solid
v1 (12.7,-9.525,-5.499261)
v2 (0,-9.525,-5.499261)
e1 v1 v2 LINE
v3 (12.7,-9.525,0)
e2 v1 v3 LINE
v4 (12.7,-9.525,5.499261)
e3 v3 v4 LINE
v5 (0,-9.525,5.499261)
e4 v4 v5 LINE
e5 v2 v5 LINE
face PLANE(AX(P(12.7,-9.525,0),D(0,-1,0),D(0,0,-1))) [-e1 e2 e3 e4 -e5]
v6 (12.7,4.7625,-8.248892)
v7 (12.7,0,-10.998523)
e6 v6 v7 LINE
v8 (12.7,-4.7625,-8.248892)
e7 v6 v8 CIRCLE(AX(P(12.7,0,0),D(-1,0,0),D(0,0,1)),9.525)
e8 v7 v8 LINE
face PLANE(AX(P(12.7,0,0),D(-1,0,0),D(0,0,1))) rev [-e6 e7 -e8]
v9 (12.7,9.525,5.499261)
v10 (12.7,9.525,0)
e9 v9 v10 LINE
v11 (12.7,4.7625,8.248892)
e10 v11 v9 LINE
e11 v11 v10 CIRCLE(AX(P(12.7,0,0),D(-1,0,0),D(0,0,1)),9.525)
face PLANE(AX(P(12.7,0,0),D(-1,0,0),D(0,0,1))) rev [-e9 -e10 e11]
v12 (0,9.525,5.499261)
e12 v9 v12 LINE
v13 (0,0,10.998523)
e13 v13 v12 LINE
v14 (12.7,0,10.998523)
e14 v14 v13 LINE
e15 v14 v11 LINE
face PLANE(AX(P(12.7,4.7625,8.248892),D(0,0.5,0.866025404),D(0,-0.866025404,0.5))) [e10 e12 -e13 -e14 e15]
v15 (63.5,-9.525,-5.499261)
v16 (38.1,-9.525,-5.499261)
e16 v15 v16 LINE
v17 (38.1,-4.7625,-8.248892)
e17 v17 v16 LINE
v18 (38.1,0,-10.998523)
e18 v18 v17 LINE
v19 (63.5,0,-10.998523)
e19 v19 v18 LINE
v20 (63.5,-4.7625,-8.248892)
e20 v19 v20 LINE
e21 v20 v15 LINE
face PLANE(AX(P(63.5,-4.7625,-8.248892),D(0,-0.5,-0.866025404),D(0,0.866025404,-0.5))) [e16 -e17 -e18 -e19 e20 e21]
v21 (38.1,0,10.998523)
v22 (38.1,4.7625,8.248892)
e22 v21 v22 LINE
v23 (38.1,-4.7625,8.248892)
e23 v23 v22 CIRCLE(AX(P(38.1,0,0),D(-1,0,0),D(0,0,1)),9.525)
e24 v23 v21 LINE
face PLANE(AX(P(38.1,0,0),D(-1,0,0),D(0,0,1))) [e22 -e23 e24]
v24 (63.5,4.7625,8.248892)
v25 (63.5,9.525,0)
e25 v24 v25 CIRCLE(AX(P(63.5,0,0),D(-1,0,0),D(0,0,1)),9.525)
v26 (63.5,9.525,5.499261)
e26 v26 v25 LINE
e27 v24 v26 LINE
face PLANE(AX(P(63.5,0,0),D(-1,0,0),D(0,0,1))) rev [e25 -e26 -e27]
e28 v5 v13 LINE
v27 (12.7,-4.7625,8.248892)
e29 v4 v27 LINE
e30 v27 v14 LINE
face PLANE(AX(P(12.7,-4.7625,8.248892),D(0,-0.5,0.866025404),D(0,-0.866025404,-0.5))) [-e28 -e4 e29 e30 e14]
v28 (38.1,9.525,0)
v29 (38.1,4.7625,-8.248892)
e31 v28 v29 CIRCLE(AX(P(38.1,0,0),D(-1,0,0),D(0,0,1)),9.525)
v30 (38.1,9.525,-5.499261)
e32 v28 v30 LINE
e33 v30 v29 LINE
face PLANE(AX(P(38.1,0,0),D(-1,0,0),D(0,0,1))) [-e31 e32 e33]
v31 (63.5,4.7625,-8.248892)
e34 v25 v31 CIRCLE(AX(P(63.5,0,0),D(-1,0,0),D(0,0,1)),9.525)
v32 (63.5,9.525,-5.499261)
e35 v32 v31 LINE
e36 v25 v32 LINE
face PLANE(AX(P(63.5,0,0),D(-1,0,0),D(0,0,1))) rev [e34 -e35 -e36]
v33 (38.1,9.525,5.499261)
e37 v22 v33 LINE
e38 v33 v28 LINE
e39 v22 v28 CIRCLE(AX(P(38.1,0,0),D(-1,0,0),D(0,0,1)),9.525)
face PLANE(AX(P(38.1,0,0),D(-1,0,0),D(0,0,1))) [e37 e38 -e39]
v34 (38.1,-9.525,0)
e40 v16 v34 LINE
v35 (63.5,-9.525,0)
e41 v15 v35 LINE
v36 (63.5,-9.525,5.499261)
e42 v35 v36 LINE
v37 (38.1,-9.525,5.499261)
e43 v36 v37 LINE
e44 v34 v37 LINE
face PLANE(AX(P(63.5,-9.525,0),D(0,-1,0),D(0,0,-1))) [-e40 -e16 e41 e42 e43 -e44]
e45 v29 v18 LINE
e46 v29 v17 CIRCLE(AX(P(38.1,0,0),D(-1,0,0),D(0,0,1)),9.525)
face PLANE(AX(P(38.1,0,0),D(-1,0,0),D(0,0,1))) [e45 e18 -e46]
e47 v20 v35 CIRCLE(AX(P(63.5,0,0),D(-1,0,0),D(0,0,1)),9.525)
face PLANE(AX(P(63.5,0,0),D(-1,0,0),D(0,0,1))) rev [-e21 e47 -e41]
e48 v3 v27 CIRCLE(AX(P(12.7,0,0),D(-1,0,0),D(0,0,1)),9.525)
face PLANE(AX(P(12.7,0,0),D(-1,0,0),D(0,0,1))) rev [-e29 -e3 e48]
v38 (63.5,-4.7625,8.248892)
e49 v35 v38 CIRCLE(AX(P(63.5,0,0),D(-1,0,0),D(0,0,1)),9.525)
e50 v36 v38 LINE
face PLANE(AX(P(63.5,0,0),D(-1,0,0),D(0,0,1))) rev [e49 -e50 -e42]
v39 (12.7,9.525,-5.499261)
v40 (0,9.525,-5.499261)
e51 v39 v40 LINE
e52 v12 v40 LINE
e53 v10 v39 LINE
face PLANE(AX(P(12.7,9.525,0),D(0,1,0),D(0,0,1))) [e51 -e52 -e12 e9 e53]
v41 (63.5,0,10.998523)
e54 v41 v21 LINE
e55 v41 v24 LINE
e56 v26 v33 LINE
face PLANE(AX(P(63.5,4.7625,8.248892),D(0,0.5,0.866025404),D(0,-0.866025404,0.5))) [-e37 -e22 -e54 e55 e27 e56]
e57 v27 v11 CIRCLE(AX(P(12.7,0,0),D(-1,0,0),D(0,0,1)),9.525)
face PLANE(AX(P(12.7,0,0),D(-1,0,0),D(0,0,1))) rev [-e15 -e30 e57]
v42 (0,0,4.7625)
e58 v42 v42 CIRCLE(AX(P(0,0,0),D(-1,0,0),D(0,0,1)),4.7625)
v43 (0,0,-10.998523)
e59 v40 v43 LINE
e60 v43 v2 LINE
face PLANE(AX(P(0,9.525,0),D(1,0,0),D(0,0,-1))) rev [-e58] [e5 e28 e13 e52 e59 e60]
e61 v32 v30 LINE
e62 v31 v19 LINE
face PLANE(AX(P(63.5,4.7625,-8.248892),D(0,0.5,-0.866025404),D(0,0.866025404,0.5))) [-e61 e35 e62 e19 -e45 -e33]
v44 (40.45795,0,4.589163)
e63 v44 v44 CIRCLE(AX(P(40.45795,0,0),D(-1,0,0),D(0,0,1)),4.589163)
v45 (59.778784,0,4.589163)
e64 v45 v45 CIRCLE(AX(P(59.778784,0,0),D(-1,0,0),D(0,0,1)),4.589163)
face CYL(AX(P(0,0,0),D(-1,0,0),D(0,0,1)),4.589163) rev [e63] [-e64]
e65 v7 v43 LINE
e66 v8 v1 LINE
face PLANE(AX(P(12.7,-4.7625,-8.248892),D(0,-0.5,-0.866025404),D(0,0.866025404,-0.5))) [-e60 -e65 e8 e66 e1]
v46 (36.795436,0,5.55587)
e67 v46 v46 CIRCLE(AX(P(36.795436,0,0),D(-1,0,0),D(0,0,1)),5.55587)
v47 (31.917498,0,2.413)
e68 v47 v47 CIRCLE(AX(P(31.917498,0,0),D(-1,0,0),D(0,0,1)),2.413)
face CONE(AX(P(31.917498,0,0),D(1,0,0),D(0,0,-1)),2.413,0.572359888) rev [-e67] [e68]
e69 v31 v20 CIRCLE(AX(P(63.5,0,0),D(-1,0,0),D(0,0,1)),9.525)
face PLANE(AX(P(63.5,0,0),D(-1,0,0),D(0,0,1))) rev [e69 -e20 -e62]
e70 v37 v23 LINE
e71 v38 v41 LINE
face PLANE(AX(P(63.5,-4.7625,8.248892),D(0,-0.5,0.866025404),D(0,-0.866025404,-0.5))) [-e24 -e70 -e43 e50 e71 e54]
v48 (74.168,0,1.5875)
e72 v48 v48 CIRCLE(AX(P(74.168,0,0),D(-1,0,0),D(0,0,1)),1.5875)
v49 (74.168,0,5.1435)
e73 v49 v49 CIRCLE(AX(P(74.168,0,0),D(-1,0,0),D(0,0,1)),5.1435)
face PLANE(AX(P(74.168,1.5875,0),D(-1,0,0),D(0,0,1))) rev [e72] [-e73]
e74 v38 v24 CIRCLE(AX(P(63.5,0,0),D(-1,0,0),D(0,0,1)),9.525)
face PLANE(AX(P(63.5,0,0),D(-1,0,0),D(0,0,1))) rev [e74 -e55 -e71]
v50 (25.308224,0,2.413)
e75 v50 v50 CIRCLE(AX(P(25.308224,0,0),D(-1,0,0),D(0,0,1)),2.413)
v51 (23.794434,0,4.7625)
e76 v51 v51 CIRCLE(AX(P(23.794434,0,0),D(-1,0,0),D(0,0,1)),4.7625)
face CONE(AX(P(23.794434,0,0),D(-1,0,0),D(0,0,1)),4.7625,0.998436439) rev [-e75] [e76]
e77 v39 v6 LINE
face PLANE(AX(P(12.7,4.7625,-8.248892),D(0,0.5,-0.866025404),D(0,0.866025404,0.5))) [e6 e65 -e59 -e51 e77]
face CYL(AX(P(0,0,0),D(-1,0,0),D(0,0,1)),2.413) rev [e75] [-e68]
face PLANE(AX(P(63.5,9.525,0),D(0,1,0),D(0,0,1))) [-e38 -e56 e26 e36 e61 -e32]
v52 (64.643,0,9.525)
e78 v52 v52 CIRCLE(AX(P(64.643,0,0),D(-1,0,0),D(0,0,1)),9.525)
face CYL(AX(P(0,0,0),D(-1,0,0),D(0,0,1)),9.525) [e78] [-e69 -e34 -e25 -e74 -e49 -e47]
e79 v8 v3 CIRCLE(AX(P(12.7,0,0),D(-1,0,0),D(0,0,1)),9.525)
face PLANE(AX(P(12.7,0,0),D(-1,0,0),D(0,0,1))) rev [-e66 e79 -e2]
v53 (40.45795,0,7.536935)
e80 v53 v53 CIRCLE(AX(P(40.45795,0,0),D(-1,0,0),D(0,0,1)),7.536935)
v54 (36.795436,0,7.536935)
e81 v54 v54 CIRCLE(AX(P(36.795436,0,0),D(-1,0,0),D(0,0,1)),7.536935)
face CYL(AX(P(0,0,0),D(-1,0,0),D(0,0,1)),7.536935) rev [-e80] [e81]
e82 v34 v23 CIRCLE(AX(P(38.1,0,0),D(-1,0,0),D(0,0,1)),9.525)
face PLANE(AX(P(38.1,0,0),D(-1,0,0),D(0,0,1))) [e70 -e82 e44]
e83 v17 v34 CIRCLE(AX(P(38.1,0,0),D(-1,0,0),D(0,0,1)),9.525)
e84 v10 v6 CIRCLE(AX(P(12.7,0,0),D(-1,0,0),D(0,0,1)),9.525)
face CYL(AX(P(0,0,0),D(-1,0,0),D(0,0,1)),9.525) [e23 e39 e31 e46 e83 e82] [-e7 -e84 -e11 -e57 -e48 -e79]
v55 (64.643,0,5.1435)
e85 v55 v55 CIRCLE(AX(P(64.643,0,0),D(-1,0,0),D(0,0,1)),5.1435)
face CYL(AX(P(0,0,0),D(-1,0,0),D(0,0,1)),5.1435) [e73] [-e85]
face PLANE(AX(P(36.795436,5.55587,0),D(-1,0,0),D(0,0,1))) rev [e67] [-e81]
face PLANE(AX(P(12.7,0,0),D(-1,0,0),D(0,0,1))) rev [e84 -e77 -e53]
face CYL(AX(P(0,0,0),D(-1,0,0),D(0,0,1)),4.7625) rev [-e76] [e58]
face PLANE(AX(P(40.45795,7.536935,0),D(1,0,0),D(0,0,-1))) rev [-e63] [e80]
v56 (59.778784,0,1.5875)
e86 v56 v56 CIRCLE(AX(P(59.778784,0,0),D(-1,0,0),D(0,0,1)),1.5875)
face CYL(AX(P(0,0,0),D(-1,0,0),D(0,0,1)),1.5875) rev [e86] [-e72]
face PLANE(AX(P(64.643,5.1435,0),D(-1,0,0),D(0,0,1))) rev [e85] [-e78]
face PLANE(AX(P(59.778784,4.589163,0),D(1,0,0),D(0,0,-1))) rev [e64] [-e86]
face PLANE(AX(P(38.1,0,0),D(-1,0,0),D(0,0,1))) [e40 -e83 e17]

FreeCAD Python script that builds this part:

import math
import FreeCAD as App
import Part
import Sketcher

V = App.Vector
Q = App.Units.Quantity


def add_polygon(sketch, points):
    """Adds a closed chain of lines whose ends are joined by coincident constraints."""
    first, n = sketch.GeometryCount, len(points)
    for a, b in zip(points, points[1:] + points[:1]):
        sketch.addGeometry(Part.LineSegment(App.Vector(*a, 0), App.Vector(*b, 0)), False)
    for i in range(n):
        sketch.addConstraint(Sketcher.Constraint("Coincident", first + i, 2, first + (i + 1) % n, 1))

doc = App.newDocument("Part")
body = doc.addObject("PartDesign::Body", "Body")

# Sketch on XY plane
sketch1 = body.newObject("Sketcher::SketchObject", "Sketch")
sketch1.AttachmentSupport = (doc.getObject("XY_Plane"), [""])
sketch1.MapMode = "FlatFace"
add_polygon(sketch1, [(64.6, 9.5), (0, 9.5), (0, 4.8), (23.8, 4.8), (25.3, 2.4), (31.9, 2.4), (36.8, 5.6), (36.8, 7.5), (40.5, 7.5), (40.5, 4.6), (59.8, 4.6), (59.8, 1.6), (74.2, 1.6), (74.2, 5.1), (64.6, 5.1)])  # lines 0-14
sketch1.addConstraint([
    Sketcher.Constraint("Horizontal", 0),
    Sketcher.Constraint("Vertical", 1),
    Sketcher.Constraint("Horizontal", 2),
    Sketcher.Constraint("Horizontal", 4),
    Sketcher.Constraint("Vertical", 6),
    Sketcher.Constraint("Horizontal", 7),
    Sketcher.Constraint("Vertical", 8),
    Sketcher.Constraint("Horizontal", 9),
    Sketcher.Constraint("Vertical", 10),
    Sketcher.Constraint("Horizontal", 11),
    Sketcher.Constraint("Vertical", 12),
    Sketcher.Constraint("Horizontal", 13),
    Sketcher.Constraint("Vertical", 14),
    Sketcher.Constraint("PointOnObject", 0, 2, -2),
    Sketcher.Constraint("Perpendicular", 3, 5),
    Sketcher.Constraint("DistanceY", 12, 1, 12, 2, Q("0.14 in")),
    Sketcher.Constraint("DistanceX", 0, 2, 0, 1, Q("2.545 in")),
    Sketcher.Constraint("DistanceX", 13, 2, 13, 1, Q("0.375 in")),
    Sketcher.Constraint("DistanceY", 1, 2, 1, 1, Q("0.1875 in")),
    Sketcher.Constraint("DistanceY", 3, 2, 0, 2, Q("0.28 in")),
    Sketcher.Constraint("DistanceY", 14, 1, 14, 2, Q("0.1725 in")),
    Sketcher.Constraint("DistanceY", -1, 1, 0, 2, Q("0.375 in")),
    Sketcher.Constraint("DistanceX", -1, 1, 4, 2, 31.917498),
    Sketcher.Constraint("Distance", 5, 5.80275),
    Sketcher.Constraint("DistanceX", 2, 1, 2, 2, 23.794434),
    Sketcher.Constraint("DistanceX", 4, 1, 4, 2, 6.609274),
    Sketcher.Constraint("DistanceX", 7, 1, 7, 2, 3.662514),
    Sketcher.Constraint("DistanceX", 9, 1, 9, 2, 19.320834),
    Sketcher.Constraint("DistanceY", 6, 1, 6, 2, 1.981065),
    Sketcher.Constraint("DistanceY", 8, 2, 8, 1, 2.947772),
])
revolution = body.newObject("PartDesign::Revolution", "Revolution")
revolution.Profile = sketch1
revolution.ReferenceAxis = (sketch1, ["H_Axis"])
revolution.Angle = 360

# Sketch on YZ plane
sketch2 = body.newObject("Sketcher::SketchObject", "Sketch001")
sketch2.AttachmentSupport = (doc.getObject("YZ_Plane"), [""])
sketch2.MapMode = "FlatFace"
sketch2.AttachmentOffset = App.Placement(V(0, 0, 0.5 * 25.4), App.Rotation())
sketch2.addGeometry([
    Part.LineSegment(V(9.5, 5.5, 0), V(9.5, 0, 0)),  # 0
    Part.ArcOfCircle(Part.Circle(V(0, 0, 0), V(0, 0, 1), 9.5), math.radians(0), math.radians(60)),  # 1
    Part.LineSegment(V(4.8, 8.2, 0), V(9.5, 5.5, 0)),  # 2
    Part.LineSegment(V(9.5, -5.5, 0), V(4.8, -8.2, 0)),  # 3
    Part.ArcOfCircle(Part.Circle(V(0, 0, 0), V(0, 0, 1), 9.5), math.radians(-60), math.radians(0)),  # 4
    Part.LineSegment(V(9.5, 0, 0), V(9.5, -5.5, 0)),  # 5
    Part.LineSegment(V(4.8, -8.2, 0), V(0, -11, 0)),  # 6
    Part.LineSegment(V(0, -11, 0), V(-4.8, -8.2, 0)),  # 7
    Part.ArcOfCircle(Part.Circle(V(0, 0, 0), V(0, 0, 1), 9.5), math.radians(-120), math.radians(-60)),  # 8
    Part.ArcOfCircle(Part.Circle(V(0, 0, 0), V(0, 0, 1), 9.5), math.radians(-180), math.radians(-120)),  # 9
    Part.LineSegment(V(-4.8, -8.2, 0), V(-9.5, -5.5, 0)),  # 10
    Part.LineSegment(V(-9.5, -5.5, 0), V(-9.5, 0, 0)),  # 11
    Part.ArcOfCircle(Part.Circle(V(0, 0, 0), V(0, 0, 1), 9.5), math.radians(120), math.radians(180)),  # 12
    Part.LineSegment(V(-9.5, 0, 0), V(-9.5, 5.5, 0)),  # 13
    Part.LineSegment(V(-9.5, 5.5, 0), V(-4.8, 8.2, 0)),  # 14
    Part.ArcOfCircle(Part.Circle(V(0, 0, 0), V(0, 0, 1), 9.5), math.radians(90), math.radians(120)),  # 15
    Part.LineSegment(V(-4.8, 8.2, 0), V(0, 11, 0)),  # 16
    Part.LineSegment(V(0, 11, 0), V(4.8, 8.2, 0)),  # 17
    Part.ArcOfCircle(Part.Circle(V(0, 0, 0), V(0, 0, 1), 9.5), math.radians(60), math.radians(90)),  # 18
], False)
sketch2.addConstraint([
    Sketcher.Constraint("Tangent", 0, 2, 1, 1),
    Sketcher.Constraint("Tangent", 1, 2, 2, 1),
    Sketcher.Constraint("Coincident", 2, 2, 0, 1),
    Sketcher.Constraint("Tangent", 3, 2, 4, 1),
    Sketcher.Constraint("Tangent", 4, 2, 5, 1),
    Sketcher.Constraint("Coincident", 5, 2, 3, 1),
    Sketcher.Constraint("Coincident", 6, 2, 7, 1),
    Sketcher.Constraint("Tangent", 7, 2, 8, 1),
    Sketcher.Constraint("Tangent", 8, 2, 6, 1),
    Sketcher.Constraint("Tangent", 9, 2, 10, 1),
    Sketcher.Constraint("Coincident", 10, 2, 11, 1),
    Sketcher.Constraint("Tangent", 11, 2, 9, 1),
    Sketcher.Constraint("Tangent", 12, 2, 13, 1),
    Sketcher.Constraint("Coincident", 13, 2, 14, 1),
    Sketcher.Constraint("Tangent", 14, 2, 12, 1),
    Sketcher.Constraint("Tangent", 15, 2, 16, 1),
    Sketcher.Constraint("Coincident", 16, 2, 17, 1),
    Sketcher.Constraint("Tangent", 17, 2, 18, 1),
    Sketcher.Constraint("Tangent", 18, 2, 15, 1),
    Sketcher.Constraint("Vertical", 0),
    Sketcher.Constraint("Vertical", 5),
    Sketcher.Constraint("Vertical", 11),
    Sketcher.Constraint("Vertical", 13),
    Sketcher.Constraint("Coincident", 1, 3, -1, 1),
    Sketcher.Constraint("Coincident", 4, 3, -1, 1),
    Sketcher.Constraint("Coincident", 8, 3, -1, 1),
    Sketcher.Constraint("Coincident", 9, 3, -1, 1),
    Sketcher.Constraint("Coincident", 12, 3, -1, 1),
    Sketcher.Constraint("Coincident", 15, 3, -1, 1),
    Sketcher.Constraint("Coincident", 8, 2, 3, 2),
    Sketcher.Constraint("Coincident", 9, 2, 7, 2),
    Sketcher.Constraint("Coincident", 15, 2, 14, 2),
    Sketcher.Constraint("Coincident", 17, 2, 1, 2),
    Sketcher.Constraint("Equal", 1, 4),
    Sketcher.Constraint("Equal", 9, 12),
    Sketcher.Constraint("Symmetric", 6, 2, 16, 2, -1, 1),
    Sketcher.Constraint("PointOnObject", 6, 2, -2),
    Sketcher.Constraint("PointOnObject", 18, 2, -2),
    Sketcher.Constraint("Equal", 3, 6),
    Sketcher.Constraint("Radius", 1, Q("0.375 in")),
])
pad1 = body.newObject("PartDesign::Pad", "Pad")
pad1.Profile = sketch2
pad1.Length = Q("0.5 in")
pad1.Reversed = True

# Sketch on YZ plane
sketch3 = body.newObject("Sketcher::SketchObject", "Sketch002")
sketch3.AttachmentSupport = (doc.getObject("YZ_Plane"), [""])
sketch3.MapMode = "FlatFace"
sketch3.AttachmentOffset = App.Placement(V(0, 0, 2.5 * 25.4), App.Rotation())
sketch3.addGeometry([
    Part.LineSegment(V(9.5, 5.5, 0), V(9.5, 0, 0)),  # 0
    Part.ArcOfCircle(Part.Circle(V(0, 0, 0), V(0, 0, 1), 9.5), math.radians(0), math.radians(60)),  # 1
    Part.LineSegment(V(4.8, 8.2, 0), V(9.5, 5.5, 0)),  # 2
    Part.LineSegment(V(9.5, -5.5, 0), V(4.8, -8.2, 0)),  # 3
    Part.ArcOfCircle(Part.Circle(V(0, 0, 0), V(0, 0, 1), 9.5), math.radians(-60), math.radians(0)),  # 4
    Part.LineSegment(V(9.5, 0, 0), V(9.5, -5.5, 0)),  # 5
    Part.LineSegment(V(4.8, -8.2, 0), V(0, -11, 0)),  # 6
    Part.LineSegment(V(0, -11, 0), V(-4.8, -8.2, 0)),  # 7
    Part.ArcOfCircle(Part.Circle(V(0, 0, 0), V(0, 0, 1), 9.5), math.radians(-120), math.radians(-60)),  # 8
    Part.ArcOfCircle(Part.Circle(V(0, 0, 0), V(0, 0, 1), 9.5), math.radians(-180), math.radians(-120)),  # 9
    Part.LineSegment(V(-4.8, -8.2, 0), V(-9.5, -5.5, 0)),  # 10
    Part.LineSegment(V(-9.5, -5.5, 0), V(-9.5, 0, 0)),  # 11
    Part.ArcOfCircle(Part.Circle(V(0, 0, 0), V(0, 0, 1), 9.5), math.radians(120), math.radians(180)),  # 12
    Part.LineSegment(V(-9.5, 0, 0), V(-9.5, 5.5, 0)),  # 13
    Part.LineSegment(V(-9.5, 5.5, 0), V(-4.8, 8.2, 0)),  # 14
    Part.ArcOfCircle(Part.Circle(V(0, 0, 0), V(0, 0, 1), 9.5), math.radians(90), math.radians(120)),  # 15
    Part.LineSegment(V(-4.8, 8.2, 0), V(0, 11, 0)),  # 16
    Part.LineSegment(V(0, 11, 0), V(4.8, 8.2, 0)),  # 17
    Part.ArcOfCircle(Part.Circle(V(0, 0, 0), V(0, 0, 1), 9.5), math.radians(60), math.radians(90)),  # 18
], False)
sketch3.addConstraint([
    Sketcher.Constraint("Tangent", 0, 2, 1, 1),
    Sketcher.Constraint("Tangent", 1, 2, 2, 1),
    Sketcher.Constraint("Coincident", 2, 2, 0, 1),
    Sketcher.Constraint("Tangent", 3, 2, 4, 1),
    Sketcher.Constraint("Tangent", 4, 2, 5, 1),
    Sketcher.Constraint("Coincident", 5, 2, 3, 1),
    Sketcher.Constraint("Coincident", 6, 2, 7, 1),
    Sketcher.Constraint("Tangent", 7, 2, 8, 1),
    Sketcher.Constraint("Tangent", 8, 2, 6, 1),
    Sketcher.Constraint("Tangent", 9, 2, 10, 1),
    Sketcher.Constraint("Coincident", 10, 2, 11, 1),
    Sketcher.Constraint("Tangent", 11, 2, 9, 1),
    Sketcher.Constraint("Tangent", 12, 2, 13, 1),
    Sketcher.Constraint("Coincident", 13, 2, 14, 1),
    Sketcher.Constraint("Tangent", 14, 2, 12, 1),
    Sketcher.Constraint("Tangent", 15, 2, 16, 1),
    Sketcher.Constraint("Coincident", 16, 2, 17, 1),
    Sketcher.Constraint("Tangent", 17, 2, 18, 1),
    Sketcher.Constraint("Tangent", 18, 2, 15, 1),
    Sketcher.Constraint("Vertical", 0),
    Sketcher.Constraint("Vertical", 5),
    Sketcher.Constraint("Vertical", 11),
    Sketcher.Constraint("Vertical", 13),
    Sketcher.Constraint("Coincident", 1, 3, -1, 1),
    Sketcher.Constraint("Coincident", 4, 3, -1, 1),
    Sketcher.Constraint("Coincident", 8, 3, -1, 1),
    Sketcher.Constraint("Coincident", 9, 3, -1, 1),
    Sketcher.Constraint("Coincident", 12, 3, -1, 1),
    Sketcher.Constraint("Coincident", 15, 3, -1, 1),
    Sketcher.Constraint("Coincident", 8, 2, 3, 2),
    Sketcher.Constraint("Coincident", 9, 2, 7, 2),
    Sketcher.Constraint("Coincident", 15, 2, 14, 2),
    Sketcher.Constraint("Coincident", 17, 2, 1, 2),
    Sketcher.Constraint("Equal", 1, 4),
    Sketcher.Constraint("Equal", 9, 12),
    Sketcher.Constraint("Symmetric", 6, 2, 16, 2, -1, 1),
    Sketcher.Constraint("PointOnObject", 6, 2, -2),
    Sketcher.Constraint("PointOnObject", 18, 2, -2),
    Sketcher.Constraint("Equal", 3, 6),
    Sketcher.Constraint("Radius", 1, Q("0.375 in")),
])
pad2 = body.newObject("PartDesign::Pad", "Pad001")
pad2.Profile = sketch3
pad2.Length = Q("1 in")
pad2.Reversed = True

doc.recompute()
